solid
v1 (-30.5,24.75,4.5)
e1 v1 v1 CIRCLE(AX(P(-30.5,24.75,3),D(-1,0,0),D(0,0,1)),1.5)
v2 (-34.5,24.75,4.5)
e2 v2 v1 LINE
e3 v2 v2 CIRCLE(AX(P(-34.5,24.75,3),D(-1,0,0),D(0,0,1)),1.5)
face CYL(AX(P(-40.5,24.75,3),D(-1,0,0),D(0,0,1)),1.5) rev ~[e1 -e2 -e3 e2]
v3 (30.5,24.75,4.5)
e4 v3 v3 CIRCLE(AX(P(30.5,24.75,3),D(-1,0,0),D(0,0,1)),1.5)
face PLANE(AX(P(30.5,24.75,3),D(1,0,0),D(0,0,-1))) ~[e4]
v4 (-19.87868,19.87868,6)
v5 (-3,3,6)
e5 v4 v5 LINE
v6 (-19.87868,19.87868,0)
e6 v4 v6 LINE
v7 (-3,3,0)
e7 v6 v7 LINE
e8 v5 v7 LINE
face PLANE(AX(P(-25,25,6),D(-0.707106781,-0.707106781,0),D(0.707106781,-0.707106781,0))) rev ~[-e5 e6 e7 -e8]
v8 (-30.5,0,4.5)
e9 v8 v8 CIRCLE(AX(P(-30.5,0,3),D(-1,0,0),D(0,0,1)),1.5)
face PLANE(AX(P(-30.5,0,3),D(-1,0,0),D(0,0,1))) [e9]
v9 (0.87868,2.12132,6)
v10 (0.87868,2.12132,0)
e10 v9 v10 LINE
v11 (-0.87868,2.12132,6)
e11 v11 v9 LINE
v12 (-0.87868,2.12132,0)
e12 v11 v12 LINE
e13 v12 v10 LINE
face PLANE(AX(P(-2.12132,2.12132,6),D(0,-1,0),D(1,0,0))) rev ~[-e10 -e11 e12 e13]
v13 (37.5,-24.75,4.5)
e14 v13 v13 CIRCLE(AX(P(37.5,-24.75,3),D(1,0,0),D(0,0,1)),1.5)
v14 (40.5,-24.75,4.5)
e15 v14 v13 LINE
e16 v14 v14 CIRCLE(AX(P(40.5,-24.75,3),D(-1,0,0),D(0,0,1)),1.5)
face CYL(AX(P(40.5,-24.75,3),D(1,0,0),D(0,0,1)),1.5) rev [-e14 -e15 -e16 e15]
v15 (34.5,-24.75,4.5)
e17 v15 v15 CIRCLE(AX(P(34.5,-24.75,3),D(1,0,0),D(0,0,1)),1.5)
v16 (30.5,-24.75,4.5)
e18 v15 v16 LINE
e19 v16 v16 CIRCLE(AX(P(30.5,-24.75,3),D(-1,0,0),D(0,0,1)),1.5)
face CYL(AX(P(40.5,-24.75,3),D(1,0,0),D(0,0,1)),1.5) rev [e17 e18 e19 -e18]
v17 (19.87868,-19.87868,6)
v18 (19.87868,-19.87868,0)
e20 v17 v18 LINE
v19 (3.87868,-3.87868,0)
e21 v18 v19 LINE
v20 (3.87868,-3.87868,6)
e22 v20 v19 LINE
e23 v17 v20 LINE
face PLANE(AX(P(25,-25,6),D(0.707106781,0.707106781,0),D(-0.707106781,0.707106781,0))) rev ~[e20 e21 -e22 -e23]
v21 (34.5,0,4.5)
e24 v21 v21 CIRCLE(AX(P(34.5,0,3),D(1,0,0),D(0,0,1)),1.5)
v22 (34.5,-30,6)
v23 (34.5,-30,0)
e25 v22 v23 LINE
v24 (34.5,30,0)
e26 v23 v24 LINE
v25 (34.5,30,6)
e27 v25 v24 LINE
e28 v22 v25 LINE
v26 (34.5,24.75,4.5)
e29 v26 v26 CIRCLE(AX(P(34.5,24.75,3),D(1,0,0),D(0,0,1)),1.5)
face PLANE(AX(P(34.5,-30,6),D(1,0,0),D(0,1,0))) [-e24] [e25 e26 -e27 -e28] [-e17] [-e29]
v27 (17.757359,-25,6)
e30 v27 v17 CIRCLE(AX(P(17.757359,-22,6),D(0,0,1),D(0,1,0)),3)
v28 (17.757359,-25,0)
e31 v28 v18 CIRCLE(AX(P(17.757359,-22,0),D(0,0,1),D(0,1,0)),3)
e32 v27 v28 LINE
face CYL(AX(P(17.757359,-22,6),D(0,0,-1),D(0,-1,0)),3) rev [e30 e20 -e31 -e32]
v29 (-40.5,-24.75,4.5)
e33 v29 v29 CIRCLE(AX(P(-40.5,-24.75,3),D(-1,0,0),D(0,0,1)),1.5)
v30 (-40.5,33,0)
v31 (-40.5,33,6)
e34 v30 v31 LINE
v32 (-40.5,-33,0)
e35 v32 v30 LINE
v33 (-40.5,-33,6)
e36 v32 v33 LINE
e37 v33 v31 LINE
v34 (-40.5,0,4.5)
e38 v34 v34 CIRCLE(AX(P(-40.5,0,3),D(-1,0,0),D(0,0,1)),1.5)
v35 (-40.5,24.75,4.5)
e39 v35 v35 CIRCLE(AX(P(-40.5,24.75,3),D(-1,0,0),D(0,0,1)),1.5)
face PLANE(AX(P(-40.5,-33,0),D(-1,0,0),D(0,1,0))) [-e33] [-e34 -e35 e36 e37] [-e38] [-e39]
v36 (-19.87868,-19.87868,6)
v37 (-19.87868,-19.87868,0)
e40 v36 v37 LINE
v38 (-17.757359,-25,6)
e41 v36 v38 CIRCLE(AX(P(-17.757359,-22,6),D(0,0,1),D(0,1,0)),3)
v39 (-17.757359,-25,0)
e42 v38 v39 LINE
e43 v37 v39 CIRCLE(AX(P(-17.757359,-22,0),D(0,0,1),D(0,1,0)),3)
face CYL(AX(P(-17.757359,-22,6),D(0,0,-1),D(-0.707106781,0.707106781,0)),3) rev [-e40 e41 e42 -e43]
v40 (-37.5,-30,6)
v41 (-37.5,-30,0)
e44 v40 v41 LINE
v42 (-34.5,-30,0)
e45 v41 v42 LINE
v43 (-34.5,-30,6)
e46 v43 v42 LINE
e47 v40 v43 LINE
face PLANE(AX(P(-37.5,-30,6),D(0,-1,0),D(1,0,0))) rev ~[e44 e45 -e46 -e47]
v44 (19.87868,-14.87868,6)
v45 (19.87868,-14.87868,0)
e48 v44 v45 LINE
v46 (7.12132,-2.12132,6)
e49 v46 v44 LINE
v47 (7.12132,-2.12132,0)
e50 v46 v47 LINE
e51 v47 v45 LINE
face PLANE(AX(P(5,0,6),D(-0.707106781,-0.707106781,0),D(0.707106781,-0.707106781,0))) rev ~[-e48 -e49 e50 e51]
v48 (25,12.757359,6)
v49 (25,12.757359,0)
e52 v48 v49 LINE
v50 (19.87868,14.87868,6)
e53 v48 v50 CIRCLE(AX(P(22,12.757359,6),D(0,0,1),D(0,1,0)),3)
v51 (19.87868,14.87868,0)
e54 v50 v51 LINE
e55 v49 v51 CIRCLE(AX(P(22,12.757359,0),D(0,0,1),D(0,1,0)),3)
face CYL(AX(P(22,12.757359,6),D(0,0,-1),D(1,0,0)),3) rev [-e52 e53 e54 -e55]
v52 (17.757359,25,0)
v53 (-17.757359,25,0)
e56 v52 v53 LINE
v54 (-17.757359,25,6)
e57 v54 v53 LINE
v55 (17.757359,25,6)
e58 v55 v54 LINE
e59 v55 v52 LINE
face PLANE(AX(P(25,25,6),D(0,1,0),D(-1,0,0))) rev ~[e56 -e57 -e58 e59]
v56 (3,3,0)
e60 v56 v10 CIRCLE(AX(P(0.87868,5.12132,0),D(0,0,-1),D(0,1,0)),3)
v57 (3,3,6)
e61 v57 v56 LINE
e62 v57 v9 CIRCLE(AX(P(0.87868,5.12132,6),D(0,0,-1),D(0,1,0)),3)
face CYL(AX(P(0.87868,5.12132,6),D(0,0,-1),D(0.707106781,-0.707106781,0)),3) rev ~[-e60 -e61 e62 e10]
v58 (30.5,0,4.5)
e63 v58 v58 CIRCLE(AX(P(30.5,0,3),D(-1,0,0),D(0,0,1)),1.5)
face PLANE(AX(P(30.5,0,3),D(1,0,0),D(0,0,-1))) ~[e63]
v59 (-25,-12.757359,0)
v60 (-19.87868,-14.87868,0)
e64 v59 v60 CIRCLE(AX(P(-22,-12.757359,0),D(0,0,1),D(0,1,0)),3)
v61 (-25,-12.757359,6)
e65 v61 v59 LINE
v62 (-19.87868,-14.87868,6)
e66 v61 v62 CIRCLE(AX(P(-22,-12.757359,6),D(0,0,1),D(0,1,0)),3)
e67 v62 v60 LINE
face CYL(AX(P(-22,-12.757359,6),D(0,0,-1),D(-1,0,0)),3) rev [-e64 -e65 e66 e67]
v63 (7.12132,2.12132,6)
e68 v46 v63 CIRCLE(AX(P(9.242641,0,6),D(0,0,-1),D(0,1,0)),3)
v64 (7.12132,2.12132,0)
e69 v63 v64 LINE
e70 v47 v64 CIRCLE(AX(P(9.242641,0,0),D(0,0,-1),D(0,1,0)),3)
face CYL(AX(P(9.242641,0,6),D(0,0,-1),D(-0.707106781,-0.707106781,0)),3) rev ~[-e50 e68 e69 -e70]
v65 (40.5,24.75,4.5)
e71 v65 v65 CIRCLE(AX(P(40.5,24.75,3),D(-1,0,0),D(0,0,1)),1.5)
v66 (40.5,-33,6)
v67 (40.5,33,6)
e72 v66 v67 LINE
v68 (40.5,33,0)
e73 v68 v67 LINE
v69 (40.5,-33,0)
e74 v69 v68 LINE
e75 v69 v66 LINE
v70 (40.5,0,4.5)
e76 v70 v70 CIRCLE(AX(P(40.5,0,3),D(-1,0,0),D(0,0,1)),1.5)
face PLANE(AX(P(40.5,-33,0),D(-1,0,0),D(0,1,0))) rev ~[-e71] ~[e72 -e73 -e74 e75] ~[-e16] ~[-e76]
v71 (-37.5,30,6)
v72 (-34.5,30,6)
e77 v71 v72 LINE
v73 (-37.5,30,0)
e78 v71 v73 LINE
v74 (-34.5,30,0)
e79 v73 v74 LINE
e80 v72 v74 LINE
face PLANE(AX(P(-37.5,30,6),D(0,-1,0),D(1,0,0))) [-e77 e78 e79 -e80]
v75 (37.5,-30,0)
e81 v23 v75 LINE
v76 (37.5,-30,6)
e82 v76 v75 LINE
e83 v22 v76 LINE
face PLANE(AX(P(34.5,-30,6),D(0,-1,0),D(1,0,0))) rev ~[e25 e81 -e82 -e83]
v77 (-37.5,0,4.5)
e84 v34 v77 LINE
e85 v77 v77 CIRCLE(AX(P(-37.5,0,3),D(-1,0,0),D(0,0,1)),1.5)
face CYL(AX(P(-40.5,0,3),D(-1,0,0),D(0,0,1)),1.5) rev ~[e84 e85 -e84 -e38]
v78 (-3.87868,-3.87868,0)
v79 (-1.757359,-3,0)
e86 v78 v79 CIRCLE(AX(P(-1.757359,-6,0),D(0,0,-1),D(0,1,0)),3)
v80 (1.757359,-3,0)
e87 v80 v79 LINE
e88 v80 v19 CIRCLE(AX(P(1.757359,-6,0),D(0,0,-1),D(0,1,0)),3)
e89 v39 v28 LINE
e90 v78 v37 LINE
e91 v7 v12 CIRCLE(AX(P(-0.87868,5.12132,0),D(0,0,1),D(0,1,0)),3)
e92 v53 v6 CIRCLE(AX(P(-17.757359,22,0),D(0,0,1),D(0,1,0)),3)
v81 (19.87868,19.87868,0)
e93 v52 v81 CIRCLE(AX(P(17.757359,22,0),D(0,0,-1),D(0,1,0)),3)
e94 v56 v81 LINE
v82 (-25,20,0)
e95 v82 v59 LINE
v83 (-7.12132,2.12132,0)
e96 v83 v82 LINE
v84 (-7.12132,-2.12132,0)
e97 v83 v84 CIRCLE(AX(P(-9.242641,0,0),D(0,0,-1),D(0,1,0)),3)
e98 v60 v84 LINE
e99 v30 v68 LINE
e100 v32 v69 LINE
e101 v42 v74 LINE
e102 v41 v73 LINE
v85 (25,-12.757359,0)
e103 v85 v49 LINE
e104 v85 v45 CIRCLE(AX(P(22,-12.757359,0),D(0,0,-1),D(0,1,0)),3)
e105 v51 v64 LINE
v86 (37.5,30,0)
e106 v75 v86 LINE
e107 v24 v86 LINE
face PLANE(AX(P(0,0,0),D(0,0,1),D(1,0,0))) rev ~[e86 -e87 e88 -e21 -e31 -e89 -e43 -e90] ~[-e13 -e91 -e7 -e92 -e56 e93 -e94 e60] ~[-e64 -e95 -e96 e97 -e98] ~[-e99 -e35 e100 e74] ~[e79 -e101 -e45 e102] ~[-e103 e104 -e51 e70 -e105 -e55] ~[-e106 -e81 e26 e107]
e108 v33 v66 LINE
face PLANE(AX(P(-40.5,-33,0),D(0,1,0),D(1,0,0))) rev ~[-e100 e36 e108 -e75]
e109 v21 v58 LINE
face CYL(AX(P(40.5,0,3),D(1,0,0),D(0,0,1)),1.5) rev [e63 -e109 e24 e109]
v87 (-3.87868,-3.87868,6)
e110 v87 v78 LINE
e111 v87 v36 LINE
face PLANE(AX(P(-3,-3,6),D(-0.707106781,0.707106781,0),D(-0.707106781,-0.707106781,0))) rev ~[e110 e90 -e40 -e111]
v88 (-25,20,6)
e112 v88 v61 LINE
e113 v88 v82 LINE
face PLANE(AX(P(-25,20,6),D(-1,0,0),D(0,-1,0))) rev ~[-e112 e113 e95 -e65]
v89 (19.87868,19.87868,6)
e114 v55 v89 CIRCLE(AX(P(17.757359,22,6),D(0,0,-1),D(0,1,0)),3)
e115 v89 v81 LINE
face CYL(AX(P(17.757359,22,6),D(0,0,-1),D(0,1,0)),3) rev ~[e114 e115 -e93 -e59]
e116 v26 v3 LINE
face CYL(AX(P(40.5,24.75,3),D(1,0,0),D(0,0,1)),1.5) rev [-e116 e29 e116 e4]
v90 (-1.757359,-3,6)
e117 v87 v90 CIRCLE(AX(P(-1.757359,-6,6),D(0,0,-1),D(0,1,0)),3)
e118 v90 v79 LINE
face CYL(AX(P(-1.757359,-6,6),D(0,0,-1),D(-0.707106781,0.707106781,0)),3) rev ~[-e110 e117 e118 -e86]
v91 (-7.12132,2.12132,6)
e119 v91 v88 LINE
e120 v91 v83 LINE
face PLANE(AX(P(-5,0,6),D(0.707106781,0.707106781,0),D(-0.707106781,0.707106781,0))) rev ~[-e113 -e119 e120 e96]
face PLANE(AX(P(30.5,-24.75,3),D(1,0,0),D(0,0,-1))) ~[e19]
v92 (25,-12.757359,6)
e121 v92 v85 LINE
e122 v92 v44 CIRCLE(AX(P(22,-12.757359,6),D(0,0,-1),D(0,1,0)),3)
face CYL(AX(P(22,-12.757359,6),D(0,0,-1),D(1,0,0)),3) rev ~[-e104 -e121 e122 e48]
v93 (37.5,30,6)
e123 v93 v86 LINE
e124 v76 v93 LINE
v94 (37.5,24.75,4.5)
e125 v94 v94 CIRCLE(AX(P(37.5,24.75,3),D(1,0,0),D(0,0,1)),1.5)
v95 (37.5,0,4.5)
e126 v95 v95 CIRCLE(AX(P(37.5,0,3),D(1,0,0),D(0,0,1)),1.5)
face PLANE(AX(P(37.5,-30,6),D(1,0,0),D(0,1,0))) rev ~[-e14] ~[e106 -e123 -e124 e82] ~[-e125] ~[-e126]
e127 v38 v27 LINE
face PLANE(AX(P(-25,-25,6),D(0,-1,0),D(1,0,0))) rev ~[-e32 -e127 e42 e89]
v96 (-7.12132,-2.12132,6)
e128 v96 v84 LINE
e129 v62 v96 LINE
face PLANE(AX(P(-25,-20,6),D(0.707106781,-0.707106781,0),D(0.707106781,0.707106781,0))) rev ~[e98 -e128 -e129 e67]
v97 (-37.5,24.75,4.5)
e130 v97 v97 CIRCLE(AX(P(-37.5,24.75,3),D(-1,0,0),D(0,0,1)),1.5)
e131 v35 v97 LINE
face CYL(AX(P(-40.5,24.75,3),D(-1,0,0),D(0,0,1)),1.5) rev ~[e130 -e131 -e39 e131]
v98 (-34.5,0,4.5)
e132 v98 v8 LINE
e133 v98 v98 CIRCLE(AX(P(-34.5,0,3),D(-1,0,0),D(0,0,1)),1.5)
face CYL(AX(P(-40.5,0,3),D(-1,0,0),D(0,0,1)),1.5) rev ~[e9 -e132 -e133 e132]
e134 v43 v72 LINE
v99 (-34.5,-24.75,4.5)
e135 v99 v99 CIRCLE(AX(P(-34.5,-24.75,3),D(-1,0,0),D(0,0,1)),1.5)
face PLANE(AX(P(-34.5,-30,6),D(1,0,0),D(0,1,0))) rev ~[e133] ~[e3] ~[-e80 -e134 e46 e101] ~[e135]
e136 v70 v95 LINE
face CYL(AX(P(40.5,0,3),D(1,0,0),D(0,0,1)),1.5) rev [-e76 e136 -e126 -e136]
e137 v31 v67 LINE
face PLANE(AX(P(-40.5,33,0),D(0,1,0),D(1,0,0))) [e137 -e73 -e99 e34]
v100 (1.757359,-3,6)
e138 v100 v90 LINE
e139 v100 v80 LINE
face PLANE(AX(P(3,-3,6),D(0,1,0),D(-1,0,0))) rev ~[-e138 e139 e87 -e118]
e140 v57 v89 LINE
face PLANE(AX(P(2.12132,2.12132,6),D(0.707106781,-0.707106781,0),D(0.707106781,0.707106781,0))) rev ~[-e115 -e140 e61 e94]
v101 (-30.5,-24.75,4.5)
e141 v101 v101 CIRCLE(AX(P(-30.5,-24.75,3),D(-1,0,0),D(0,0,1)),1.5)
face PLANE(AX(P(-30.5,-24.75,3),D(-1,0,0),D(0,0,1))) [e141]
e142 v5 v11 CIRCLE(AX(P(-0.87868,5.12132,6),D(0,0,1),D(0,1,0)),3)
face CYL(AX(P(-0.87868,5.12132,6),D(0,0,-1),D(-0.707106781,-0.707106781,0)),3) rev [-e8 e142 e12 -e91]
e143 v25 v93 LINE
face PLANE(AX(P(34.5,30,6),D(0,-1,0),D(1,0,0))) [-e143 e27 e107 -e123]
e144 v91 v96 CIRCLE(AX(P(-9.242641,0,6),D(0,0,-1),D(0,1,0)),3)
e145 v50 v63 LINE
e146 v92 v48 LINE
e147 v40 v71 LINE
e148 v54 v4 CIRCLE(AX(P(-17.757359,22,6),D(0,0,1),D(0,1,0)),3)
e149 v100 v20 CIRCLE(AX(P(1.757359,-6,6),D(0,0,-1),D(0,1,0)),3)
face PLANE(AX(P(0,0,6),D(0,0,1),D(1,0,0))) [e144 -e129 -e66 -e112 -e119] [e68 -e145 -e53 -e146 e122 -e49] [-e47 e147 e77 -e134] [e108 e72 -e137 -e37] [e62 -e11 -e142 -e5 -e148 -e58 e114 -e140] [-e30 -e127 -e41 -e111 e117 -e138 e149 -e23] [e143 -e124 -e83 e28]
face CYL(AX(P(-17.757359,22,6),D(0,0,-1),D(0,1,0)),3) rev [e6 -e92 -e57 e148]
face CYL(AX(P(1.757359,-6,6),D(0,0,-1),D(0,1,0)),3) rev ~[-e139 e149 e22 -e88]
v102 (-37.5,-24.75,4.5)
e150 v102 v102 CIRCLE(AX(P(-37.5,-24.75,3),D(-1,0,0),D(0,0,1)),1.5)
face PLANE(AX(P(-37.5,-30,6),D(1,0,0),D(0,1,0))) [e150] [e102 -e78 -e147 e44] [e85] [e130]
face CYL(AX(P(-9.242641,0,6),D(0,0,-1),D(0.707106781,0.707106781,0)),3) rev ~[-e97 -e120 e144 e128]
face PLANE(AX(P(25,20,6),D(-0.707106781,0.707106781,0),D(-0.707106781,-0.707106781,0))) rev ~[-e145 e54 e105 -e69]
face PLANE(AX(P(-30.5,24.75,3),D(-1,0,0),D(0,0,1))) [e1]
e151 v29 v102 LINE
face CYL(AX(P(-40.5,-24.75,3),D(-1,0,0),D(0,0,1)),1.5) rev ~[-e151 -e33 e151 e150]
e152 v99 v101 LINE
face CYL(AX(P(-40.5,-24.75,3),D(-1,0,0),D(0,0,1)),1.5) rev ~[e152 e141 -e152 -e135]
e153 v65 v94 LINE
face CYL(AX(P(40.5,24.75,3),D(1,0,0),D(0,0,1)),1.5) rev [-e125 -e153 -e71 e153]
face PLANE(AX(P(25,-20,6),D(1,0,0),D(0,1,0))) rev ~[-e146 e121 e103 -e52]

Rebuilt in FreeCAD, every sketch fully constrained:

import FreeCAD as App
import Part
import Sketcher


def edges_at(feature, points):
    """Names of the edges that pass closest to the given points."""
    edges = feature.Shape.Edges
    near = lambda p: min(range(len(edges)), key=lambda i: edges[i].distToShape(Part.Vertex(*p))[0])
    return sorted({f"Edge{near(p) + 1}" for p in points})


def add_polygon(sketch, points):
    """Adds a closed chain of lines whose ends are joined by coincident constraints."""
    first, n = sketch.GeometryCount, len(points)
    for a, b in zip(points, points[1:] + points[:1]):
        sketch.addGeometry(Part.LineSegment(App.Vector(*a, 0), App.Vector(*b, 0)), False)
    for i in range(n):
        sketch.addConstraint(Sketcher.Constraint("Coincident", first + i, 2, first + (i + 1) % n, 1))

doc = App.newDocument("Part")
params = doc.addObject("Spreadsheet::Sheet", "Params")
for row, (alias, value) in enumerate([
    ("sketch1_width", "81 mm"),
    ("sketch1_height", "66 mm"),
    ("pad1_length", "6 mm"),
    ("sketch2_width", "3 mm"),
    ("sketch2_height", "60 mm"),
    ("sketch3_width", "50 mm"),
    ("sketch3_width2", "6 mm"),
    ("sketch3_height", "40 mm"),
    ("fillet_radius", "3 mm"),
    ("fillet2_radius", "3 mm"),
    ("sketch4_diameter", "3 mm"),
    ("pocket3_length", "10 mm"),
], start=1):
    params.set(f"A{row}", alias)
    params.set(f"B{row}", "=" + value)
    params.setAlias(f"B{row}", alias)

body = doc.addObject("PartDesign::Body", "Body")

sketch1 = body.newObject("Sketcher::SketchObject", "Sketch")
sketch1.AttachmentSupport = (doc.getObject("XY_Plane"), [""])
sketch1.MapMode = "FlatFace"
add_polygon(sketch1, [(-40, 33), (-40, -33), (40, -33), (40, 33)])
sketch1.addConstraint(Sketcher.Constraint("Vertical", 0))
sketch1.addConstraint(Sketcher.Constraint("Horizontal", 1))
sketch1.addConstraint(Sketcher.Constraint("Vertical", 2))
sketch1.addConstraint(Sketcher.Constraint("Horizontal", 3))
sketch1.addConstraint(Sketcher.Constraint("Symmetric", 0, 2, 2, 2, -1, 1))
sketch1.addConstraint(Sketcher.Constraint("DistanceX", 1, 1, 1, 2, 81.0))
sketch1.addConstraint(Sketcher.Constraint("DistanceY", 0, 2, 0, 1, 66.0))
sketch1.setExpression("Constraints[9]", "Params.sketch1_width")
sketch1.setExpression("Constraints[10]", "Params.sketch1_height")
pad1 = body.newObject("PartDesign::Pad", "Pad")
pad1.Profile = sketch1
pad1.setExpression("Length", "Params.pad1_length")

sketch2 = body.newObject("Sketcher::SketchObject", "Sketch001")
sketch2.AttachmentSupport = (doc.getObject("XY_Plane"), [""])
sketch2.MapMode = "FlatFace"
sketch2.AttachmentOffset = App.Placement(App.Vector(0, 0, 6), App.Rotation())
add_polygon(sketch2, [(-37.5, 30), (-37.5, -30), (-34.5, -30), (-34.5, 30)])
add_polygon(sketch2, [(34.5, 30), (34.5, -30), (37.5, -30), (37.5, 30)])
sketch2.addConstraint(Sketcher.Constraint("Vertical", 0))
sketch2.addConstraint(Sketcher.Constraint("Horizontal", 1))
sketch2.addConstraint(Sketcher.Constraint("Vertical", 2))
sketch2.addConstraint(Sketcher.Constraint("Horizontal", 3))
sketch2.addConstraint(Sketcher.Constraint("Vertical", 4))
sketch2.addConstraint(Sketcher.Constraint("Horizontal", 5))
sketch2.addConstraint(Sketcher.Constraint("Vertical", 6))
sketch2.addConstraint(Sketcher.Constraint("Horizontal", 7))
sketch2.addConstraint(Sketcher.Constraint("Symmetric", 2, 2, 4, 2, -1, 1))
sketch2.addConstraint(Sketcher.Constraint("Symmetric", 0, 2, 6, 2, -1, 1))
sketch2.addConstraint(Sketcher.Constraint("Horizontal", 1, 2, 4, 2))
sketch2.addConstraint(Sketcher.Constraint("DistanceX", 1, 1, 1, 2, 3.0))
sketch2.addConstraint(Sketcher.Constraint("DistanceY", 0, 2, 0, 1, 60.0))
sketch2.addConstraint(Sketcher.Constraint("DistanceX", 1, 2, 4, 2, 69.0))
sketch2.setExpression("Constraints[19]", "Params.sketch2_width")
sketch2.setExpression("Constraints[20]", "Params.sketch2_height")
pocket1 = body.newObject("PartDesign::Pocket", "Pocket")
pocket1.Profile = sketch2
pocket1.Type = "ThroughAll"

sketch3 = body.newObject("Sketcher::SketchObject", "Sketch002")
sketch3.AttachmentSupport = (doc.getObject("XY_Plane"), [""])
sketch3.MapMode = "FlatFace"
sketch3.AttachmentOffset = App.Placement(App.Vector(0, 0, 6), App.Rotation())
add_polygon(sketch3, [(-5, 0), (-25, 20), (-25, -20)])
add_polygon(sketch3, [(-3, -3), (-25, -25), (25, -25), (3, -3)])
add_polygon(sketch3, [(25, -20), (25, 20), (5, 0)])
add_polygon(sketch3, [(25, 25), (-25, 25), (-2.1, 2.1), (2.1, 2.1)])
sketch3.addConstraint(Sketcher.Constraint("Vertical", 1))
sketch3.addConstraint(Sketcher.Constraint("Horizontal", 4))
sketch3.addConstraint(Sketcher.Constraint("Horizontal", 6))
sketch3.addConstraint(Sketcher.Constraint("Vertical", 7))
sketch3.addConstraint(Sketcher.Constraint("Horizontal", 10))
sketch3.addConstraint(Sketcher.Constraint("Horizontal", 12))
sketch3.addConstraint(Sketcher.Constraint("Symmetric", 1, 2, 7, 2, -1, 1))
sketch3.addConstraint(Sketcher.Constraint("Symmetric", 2, 2, 8, 2, -1, 1))
sketch3.addConstraint(Sketcher.Constraint("Symmetric", 4, 2, 10, 2, -1, 1))
sketch3.addConstraint(Sketcher.Constraint("PointOnObject", 2, 2, -1))
sketch3.addConstraint(Sketcher.Constraint("Perpendicular", 0, 2))
sketch3.addConstraint(Sketcher.Constraint("Parallel", 2, 3))
sketch3.addConstraint(Sketcher.Constraint("Perpendicular", 3, 5))
sketch3.addConstraint(Sketcher.Constraint("Perpendicular", 8, 9))
sketch3.addConstraint(Sketcher.Constraint("Parallel", 9, 11))
sketch3.addConstraint(Sketcher.Constraint("Perpendicular", 11, 13))
sketch3.addConstraint(Sketcher.Constraint("Horizontal", 0, 2, 7, 2))
sketch3.addConstraint(Sketcher.Constraint("Vertical", 1, 2, 3, 2))
sketch3.addConstraint(Sketcher.Constraint("Vertical", 4, 2, 7, 2))
sketch3.addConstraint(Sketcher.Constraint("Vertical", 9, 2, 13, 2))
sketch3.addConstraint(Sketcher.Constraint("DistanceX", 4, 1, 4, 2, 50.0))
sketch3.addConstraint(Sketcher.Constraint("DistanceX", 6, 2, 6, 1, 6.0))
sketch3.addConstraint(Sketcher.Constraint("DistanceY", 1, 2, 1, 1, 40.0))
sketch3.addConstraint(Sketcher.Constraint("DistanceY", 3, 2, -1, 1, 25.0))
sketch3.addConstraint(Sketcher.Constraint("DistanceX", 12, 1, 12, 2, 4.242641))
sketch3.setExpression("Constraints[34]", "Params.sketch3_width")
sketch3.setExpression("Constraints[35]", "Params.sketch3_width2")
sketch3.setExpression("Constraints[36]", "Params.sketch3_height")
pocket2 = body.newObject("PartDesign::Pocket", "Pocket001")
pocket2.Profile = sketch3
pocket2.Type = "ThroughAll"
doc.recompute()

fillet = body.newObject("PartDesign::Fillet", "Fillet")
fillet.Base = (pocket2, edges_at(pocket2, [
    (25, 20, 3),
    (25, -20, 3),
    (25, -25, 3),
    (-25, -25, 3),
    (-25, 25, 3),
    (25, 25, 3),
    (-25, -20, 3),
]))
fillet.setExpression("Radius", "Params.fillet_radius")
doc.recompute()

fillet2 = body.newObject("PartDesign::Fillet", "Fillet001")
fillet2.Base = (fillet, edges_at(fillet, [
    (5, 0, 3),
    (-3, -3, 3),
    (3, -3, 3),
    (2.121, 2.121, 3),
    (-2.121, 2.121, 3),
    (-5, 0, 3),
]))
fillet2.setExpression("Radius", "Params.fillet2_radius")

sketch4 = body.newObject("Sketcher::SketchObject", "Sketch003")
sketch4.AttachmentSupport = (doc.getObject("YZ_Plane"), [""])
sketch4.MapMode = "FlatFace"
sketch4.AttachmentOffset = App.Placement(App.Vector(0, 0, -40.5), App.Rotation())
sketch4.addGeometry(Part.Circle(App.Vector(24.8, 3, 0), App.Vector(0, 0, 1), 1.5), False)
sketch4.addGeometry(Part.Circle(App.Vector(0, 3, 0), App.Vector(0, 0, 1), 1.5), False)
sketch4.addGeometry(Part.Circle(App.Vector(-24.8, 3, 0), App.Vector(0, 0, 1), 1.5), False)
sketch4.addConstraint(Sketcher.Constraint("Equal", 0, 1))
sketch4.addConstraint(Sketcher.Constraint("Equal", 1, 2))
sketch4.addConstraint(Sketcher.Constraint("Symmetric", 0, 3, 2, 3, -2))
sketch4.addConstraint(Sketcher.Constraint("PointOnObject", 1, 3, -2))
sketch4.addConstraint(Sketcher.Constraint("Horizontal", 0, 3, 1, 3))
sketch4.addConstraint(Sketcher.Constraint("Diameter", 0, 3.0))
sketch4.addConstraint(Sketcher.Constraint("DistanceY", -1, 1, 0, 3, 3.0))
sketch4.addConstraint(Sketcher.Constraint("DistanceX", 2, 3, 0, 3, 49.5))
sketch4.setExpression("Constraints[5]", "Params.sketch4_diameter")
pocket3 = body.newObject("PartDesign::Pocket", "Pocket002")
pocket3.Profile = sketch4
pocket3.setExpression("Length", "Params.pocket3_length")
pocket3.Reversed = True
doc.recompute()

mirrored = body.newObject("PartDesign::Mirrored", "Mirrored")
mirrored.Originals = [pocket3]
mirrored.MirrorPlane = (doc.getObject("YZ_Plane"), [""])
body.Tip = mirrored

doc.recompute()
